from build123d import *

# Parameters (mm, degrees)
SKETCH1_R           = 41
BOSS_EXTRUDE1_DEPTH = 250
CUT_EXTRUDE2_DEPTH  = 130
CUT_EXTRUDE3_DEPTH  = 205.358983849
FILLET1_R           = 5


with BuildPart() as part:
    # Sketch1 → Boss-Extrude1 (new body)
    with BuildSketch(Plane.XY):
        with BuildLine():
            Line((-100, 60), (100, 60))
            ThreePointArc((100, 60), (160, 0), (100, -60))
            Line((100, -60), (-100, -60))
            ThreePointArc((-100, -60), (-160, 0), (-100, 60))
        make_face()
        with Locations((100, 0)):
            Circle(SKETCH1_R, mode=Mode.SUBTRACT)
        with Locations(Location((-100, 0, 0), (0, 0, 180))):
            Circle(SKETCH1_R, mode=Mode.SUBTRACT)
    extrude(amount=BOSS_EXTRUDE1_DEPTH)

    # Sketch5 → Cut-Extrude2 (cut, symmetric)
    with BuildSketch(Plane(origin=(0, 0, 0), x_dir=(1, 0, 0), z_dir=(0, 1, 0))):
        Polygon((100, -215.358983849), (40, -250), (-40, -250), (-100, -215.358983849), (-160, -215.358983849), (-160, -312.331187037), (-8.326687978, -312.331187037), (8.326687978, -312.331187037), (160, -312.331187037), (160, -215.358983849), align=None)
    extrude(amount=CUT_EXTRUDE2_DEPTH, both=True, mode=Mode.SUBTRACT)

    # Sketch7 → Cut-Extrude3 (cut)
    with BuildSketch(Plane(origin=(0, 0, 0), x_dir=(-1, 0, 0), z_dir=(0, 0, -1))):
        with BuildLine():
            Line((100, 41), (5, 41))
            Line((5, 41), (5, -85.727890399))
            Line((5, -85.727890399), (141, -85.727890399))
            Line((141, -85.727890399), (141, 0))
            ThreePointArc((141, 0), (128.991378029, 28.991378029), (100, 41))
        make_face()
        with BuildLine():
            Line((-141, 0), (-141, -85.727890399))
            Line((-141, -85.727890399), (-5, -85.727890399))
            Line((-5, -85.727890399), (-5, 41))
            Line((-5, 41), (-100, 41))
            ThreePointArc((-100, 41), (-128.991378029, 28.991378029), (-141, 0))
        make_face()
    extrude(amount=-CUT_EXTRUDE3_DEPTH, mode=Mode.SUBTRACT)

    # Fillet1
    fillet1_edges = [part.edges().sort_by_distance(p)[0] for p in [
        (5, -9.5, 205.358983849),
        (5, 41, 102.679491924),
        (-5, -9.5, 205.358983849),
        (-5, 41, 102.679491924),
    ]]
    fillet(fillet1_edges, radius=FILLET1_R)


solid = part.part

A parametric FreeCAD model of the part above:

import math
import FreeCAD as App
import Part
import Sketcher
Q = App.Units.Quantity


def edges_at(feature, points):
    """Names of the edges that pass closest to the given points."""
    edges = feature.Shape.Edges
    near = lambda p: min(range(len(edges)), key=lambda i: edges[i].distToShape(Part.Vertex(*p))[0])
    return sorted({f"Edge{near(p) + 1}" for p in points})

doc = App.newDocument("Part")
body = doc.addObject("PartDesign::Body", "Body")

# Sketch on XY plane
sketch1 = doc.addObject("Sketcher::SketchObject", "Sketch")
body.addObject(sketch1)
sketch1.AttachmentSupport = (doc.XY_Plane, [""])
sketch1.MapMode = "FlatFace"
sketch1.addGeometry([
    Part.LineSegment(App.Vector(100, 60, 0), App.Vector(-100, 60, 0)),  # 0
    Part.ArcOfCircle(Part.Circle(App.Vector(-100, 0, 0), App.Vector(0, 0, 1), 60), math.radians(90), math.radians(270)),  # 1
    Part.LineSegment(App.Vector(-100, -60, 0), App.Vector(100, -60, 0)),  # 2
    Part.ArcOfCircle(Part.Circle(App.Vector(100, 0, 0), App.Vector(0, 0, 1), 60), math.radians(-90), math.radians(90)),  # 3
    Part.Circle(App.Vector(100, 0, 0), App.Vector(0, 0, 1), 41),  # 4
    Part.Circle(App.Vector(-100, 0, 0), App.Vector(0, 0, 1), 41),  # 5
], False)
sketch1.addConstraint([
    Sketcher.Constraint("Tangent", 0, 2, 1, 1),
    Sketcher.Constraint("Tangent", 1, 2, 2, 1),
    Sketcher.Constraint("Tangent", 2, 2, 3, 1),
    Sketcher.Constraint("Tangent", 3, 2, 0, 1),
    Sketcher.Constraint("Horizontal", 0),
    Sketcher.Constraint("Horizontal", 2),
    Sketcher.Constraint("Coincident", 4, 3, 3, 3),
    Sketcher.Constraint("Coincident", 5, 3, 1, 3),
    Sketcher.Constraint("Equal", 4, 5),
    Sketcher.Constraint("Symmetric", 1, 3, 3, 3, -1, 1),
    Sketcher.Constraint("Diameter", 4, Q("82 mm")),
    Sketcher.Constraint("Radius", 1, Q("60 mm")),
    Sketcher.Constraint("DistanceX", 0, 2, 0, 1, Q("200 mm")),
])
pad1 = doc.addObject("PartDesign::Pad", "Pad")
body.addObject(pad1)
pad1.Profile = sketch1
pad1.Length = 250

# Sketch on XZ plane
sketch2 = doc.addObject("Sketcher::SketchObject", "Sketch001")
body.addObject(sketch2)
sketch2.AttachmentSupport = (doc.XZ_Plane, [""])
sketch2.MapMode = "FlatFace"
sketch2.addGeometry([
    Part.LineSegment(App.Vector(100, 215.358984, 0), App.Vector(40, 250, 0)),  # 0
    Part.LineSegment(App.Vector(40, 250, 0), App.Vector(-40, 250, 0)),  # 1
    Part.LineSegment(App.Vector(-40, 250, 0), App.Vector(-100, 215.358984, 0)),  # 2
    Part.LineSegment(App.Vector(-100, 215.358984, 0), App.Vector(-160, 215.358984, 0)),  # 3
    Part.LineSegment(App.Vector(-160, 215.358984, 0), App.Vector(-160, 312.331187, 0)),  # 4
    Part.LineSegment(App.Vector(-160, 312.331187, 0), App.Vector(160, 312.331187, 0)),  # 5
    Part.LineSegment(App.Vector(160, 312.331187, 0), App.Vector(160, 215.358984, 0)),  # 6
    Part.LineSegment(App.Vector(160, 215.358984, 0), App.Vector(100, 215.358984, 0)),  # 7
], False)
sketch2.addConstraint([
    Sketcher.Constraint("Coincident", 0, 2, 1, 1),
    Sketcher.Constraint("Coincident", 1, 2, 2, 1),
    Sketcher.Constraint("Coincident", 2, 2, 3, 1),
    Sketcher.Constraint("Coincident", 3, 2, 4, 1),
    Sketcher.Constraint("Coincident", 4, 2, 5, 1),
    Sketcher.Constraint("Coincident", 5, 2, 6, 1),
    Sketcher.Constraint("Coincident", 6, 2, 7, 1),
    Sketcher.Constraint("Coincident", 7, 2, 0, 1),
    Sketcher.Constraint("Horizontal", 1),
    Sketcher.Constraint("Horizontal", 3),
    Sketcher.Constraint("Vertical", 4),
    Sketcher.Constraint("Horizontal", 5),
    Sketcher.Constraint("Vertical", 6),
    Sketcher.Constraint("Horizontal", 7),
    Sketcher.Constraint("Symmetric", 3, 2, 6, 2, -2),
    Sketcher.Constraint("Equal", 3, 7),
    Sketcher.Constraint("Equal", 0, 2),
    Sketcher.Constraint("DistanceX", 1, 2, 1, 1, Q("80 mm")),
    Sketcher.Constraint("DistanceX", 3, 2, 3, 1, Q("60 mm")),
    Sketcher.Constraint("DistanceX", 5, 1, 5, 2, Q("320 mm")),
    Sketcher.Constraint("Angle", 0, Q("150 deg")),
    Sketcher.Constraint("DistanceY", -1, 1, 0, 2, Q("250 mm")),
    Sketcher.Constraint("DistanceY", 4, 1, 4, 2, Q("96.972203 mm")),
])
pocket1 = doc.addObject("PartDesign::Pocket", "Pocket")
body.addObject(pocket1)
pocket1.Profile = sketch2
pocket1.Length = 260
pocket1.Midplane = True

# Sketch on XY plane
sketch3 = doc.addObject("Sketcher::SketchObject", "Sketch002")
body.addObject(sketch3)
sketch3.AttachmentSupport = (doc.XY_Plane, [""])
sketch3.MapMode = "FlatFace"
sketch3.addGeometry([
    Part.LineSegment(App.Vector(-100, 41, 0), App.Vector(-5, 41, 0)),  # 0
    Part.LineSegment(App.Vector(-5, 41, 0), App.Vector(-5, -85.72789, 0)),  # 1
    Part.LineSegment(App.Vector(-5, -85.72789, 0), App.Vector(-141, -85.72789, 0)),  # 2
    Part.LineSegment(App.Vector(-141, -85.72789, 0), App.Vector(-141, 0, 0)),  # 3
    Part.ArcOfCircle(Part.Circle(App.Vector(-100, 0, 0), App.Vector(0, 0, 1), 41), math.radians(90), math.radians(180)),  # 4
    Part.LineSegment(App.Vector(141, 0, 0), App.Vector(141, -85.72789, 0)),  # 5
    Part.LineSegment(App.Vector(141, -85.72789, 0), App.Vector(5, -85.72789, 0)),  # 6
    Part.LineSegment(App.Vector(5, -85.72789, 0), App.Vector(5, 41, 0)),  # 7
    Part.LineSegment(App.Vector(5, 41, 0), App.Vector(100, 41, 0)),  # 8
    Part.ArcOfCircle(Part.Circle(App.Vector(100, 0, 0), App.Vector(0, 0, 1), 41), math.radians(0), math.radians(90)),  # 9
], False)
sketch3.addConstraint([
    Sketcher.Constraint("Coincident", 0, 2, 1, 1),
    Sketcher.Constraint("Coincident", 1, 2, 2, 1),
    Sketcher.Constraint("Coincident", 2, 2, 3, 1),
    Sketcher.Constraint("Tangent", 3, 2, 4, 2),
    Sketcher.Constraint("Tangent", 4, 1, 0, 1),
    Sketcher.Constraint("Coincident", 5, 2, 6, 1),
    Sketcher.Constraint("Coincident", 6, 2, 7, 1),
    Sketcher.Constraint("Coincident", 7, 2, 8, 1),
    Sketcher.Constraint("Tangent", 8, 2, 9, 2),
    Sketcher.Constraint("Tangent", 9, 1, 5, 1),
    Sketcher.Constraint("Horizontal", 0),
    Sketcher.Constraint("Vertical", 1),
    Sketcher.Constraint("Horizontal", 2),
    Sketcher.Constraint("Vertical", 3),
    Sketcher.Constraint("Vertical", 5),
    Sketcher.Constraint("Horizontal", 6),
    Sketcher.Constraint("Vertical", 7),
    Sketcher.Constraint("Horizontal", 8),
    Sketcher.Constraint("Equal", 4, 9),
    Sketcher.Constraint("Symmetric", 4, 3, 9, 3, -1, 1),
    Sketcher.Constraint("Symmetric", 1, 2, 6, 2, -2),
    Sketcher.Constraint("PointOnObject", 4, 3, -1),
    Sketcher.Constraint("Radius", 4, Q("41 mm")),
    Sketcher.Constraint("DistanceX", 0, 1, 0, 2, Q("95 mm")),
    Sketcher.Constraint("DistanceX", 4, 3, -1, 1, Q("100 mm")),
    Sketcher.Constraint("DistanceY", 1, 2, 1, 1, Q("126.72789 mm")),
])
pocket2 = doc.addObject("PartDesign::Pocket", "Pocket001")
body.addObject(pocket2)
pocket2.Profile = sketch3
pocket2.Length = 205.358984
pocket2.Reversed = True
doc.recompute()

fillet = doc.addObject("PartDesign::Fillet", "Fillet")
body.addObject(fillet)
fillet.Base = (pocket2, edges_at(pocket2, [
    (5, -9.5, 205.359),
    (5, 41, 102.679),
    (-5, -9.5, 205.359),
    (-5, 41, 102.679),
]))
fillet.Radius = 5

doc.recompute()
